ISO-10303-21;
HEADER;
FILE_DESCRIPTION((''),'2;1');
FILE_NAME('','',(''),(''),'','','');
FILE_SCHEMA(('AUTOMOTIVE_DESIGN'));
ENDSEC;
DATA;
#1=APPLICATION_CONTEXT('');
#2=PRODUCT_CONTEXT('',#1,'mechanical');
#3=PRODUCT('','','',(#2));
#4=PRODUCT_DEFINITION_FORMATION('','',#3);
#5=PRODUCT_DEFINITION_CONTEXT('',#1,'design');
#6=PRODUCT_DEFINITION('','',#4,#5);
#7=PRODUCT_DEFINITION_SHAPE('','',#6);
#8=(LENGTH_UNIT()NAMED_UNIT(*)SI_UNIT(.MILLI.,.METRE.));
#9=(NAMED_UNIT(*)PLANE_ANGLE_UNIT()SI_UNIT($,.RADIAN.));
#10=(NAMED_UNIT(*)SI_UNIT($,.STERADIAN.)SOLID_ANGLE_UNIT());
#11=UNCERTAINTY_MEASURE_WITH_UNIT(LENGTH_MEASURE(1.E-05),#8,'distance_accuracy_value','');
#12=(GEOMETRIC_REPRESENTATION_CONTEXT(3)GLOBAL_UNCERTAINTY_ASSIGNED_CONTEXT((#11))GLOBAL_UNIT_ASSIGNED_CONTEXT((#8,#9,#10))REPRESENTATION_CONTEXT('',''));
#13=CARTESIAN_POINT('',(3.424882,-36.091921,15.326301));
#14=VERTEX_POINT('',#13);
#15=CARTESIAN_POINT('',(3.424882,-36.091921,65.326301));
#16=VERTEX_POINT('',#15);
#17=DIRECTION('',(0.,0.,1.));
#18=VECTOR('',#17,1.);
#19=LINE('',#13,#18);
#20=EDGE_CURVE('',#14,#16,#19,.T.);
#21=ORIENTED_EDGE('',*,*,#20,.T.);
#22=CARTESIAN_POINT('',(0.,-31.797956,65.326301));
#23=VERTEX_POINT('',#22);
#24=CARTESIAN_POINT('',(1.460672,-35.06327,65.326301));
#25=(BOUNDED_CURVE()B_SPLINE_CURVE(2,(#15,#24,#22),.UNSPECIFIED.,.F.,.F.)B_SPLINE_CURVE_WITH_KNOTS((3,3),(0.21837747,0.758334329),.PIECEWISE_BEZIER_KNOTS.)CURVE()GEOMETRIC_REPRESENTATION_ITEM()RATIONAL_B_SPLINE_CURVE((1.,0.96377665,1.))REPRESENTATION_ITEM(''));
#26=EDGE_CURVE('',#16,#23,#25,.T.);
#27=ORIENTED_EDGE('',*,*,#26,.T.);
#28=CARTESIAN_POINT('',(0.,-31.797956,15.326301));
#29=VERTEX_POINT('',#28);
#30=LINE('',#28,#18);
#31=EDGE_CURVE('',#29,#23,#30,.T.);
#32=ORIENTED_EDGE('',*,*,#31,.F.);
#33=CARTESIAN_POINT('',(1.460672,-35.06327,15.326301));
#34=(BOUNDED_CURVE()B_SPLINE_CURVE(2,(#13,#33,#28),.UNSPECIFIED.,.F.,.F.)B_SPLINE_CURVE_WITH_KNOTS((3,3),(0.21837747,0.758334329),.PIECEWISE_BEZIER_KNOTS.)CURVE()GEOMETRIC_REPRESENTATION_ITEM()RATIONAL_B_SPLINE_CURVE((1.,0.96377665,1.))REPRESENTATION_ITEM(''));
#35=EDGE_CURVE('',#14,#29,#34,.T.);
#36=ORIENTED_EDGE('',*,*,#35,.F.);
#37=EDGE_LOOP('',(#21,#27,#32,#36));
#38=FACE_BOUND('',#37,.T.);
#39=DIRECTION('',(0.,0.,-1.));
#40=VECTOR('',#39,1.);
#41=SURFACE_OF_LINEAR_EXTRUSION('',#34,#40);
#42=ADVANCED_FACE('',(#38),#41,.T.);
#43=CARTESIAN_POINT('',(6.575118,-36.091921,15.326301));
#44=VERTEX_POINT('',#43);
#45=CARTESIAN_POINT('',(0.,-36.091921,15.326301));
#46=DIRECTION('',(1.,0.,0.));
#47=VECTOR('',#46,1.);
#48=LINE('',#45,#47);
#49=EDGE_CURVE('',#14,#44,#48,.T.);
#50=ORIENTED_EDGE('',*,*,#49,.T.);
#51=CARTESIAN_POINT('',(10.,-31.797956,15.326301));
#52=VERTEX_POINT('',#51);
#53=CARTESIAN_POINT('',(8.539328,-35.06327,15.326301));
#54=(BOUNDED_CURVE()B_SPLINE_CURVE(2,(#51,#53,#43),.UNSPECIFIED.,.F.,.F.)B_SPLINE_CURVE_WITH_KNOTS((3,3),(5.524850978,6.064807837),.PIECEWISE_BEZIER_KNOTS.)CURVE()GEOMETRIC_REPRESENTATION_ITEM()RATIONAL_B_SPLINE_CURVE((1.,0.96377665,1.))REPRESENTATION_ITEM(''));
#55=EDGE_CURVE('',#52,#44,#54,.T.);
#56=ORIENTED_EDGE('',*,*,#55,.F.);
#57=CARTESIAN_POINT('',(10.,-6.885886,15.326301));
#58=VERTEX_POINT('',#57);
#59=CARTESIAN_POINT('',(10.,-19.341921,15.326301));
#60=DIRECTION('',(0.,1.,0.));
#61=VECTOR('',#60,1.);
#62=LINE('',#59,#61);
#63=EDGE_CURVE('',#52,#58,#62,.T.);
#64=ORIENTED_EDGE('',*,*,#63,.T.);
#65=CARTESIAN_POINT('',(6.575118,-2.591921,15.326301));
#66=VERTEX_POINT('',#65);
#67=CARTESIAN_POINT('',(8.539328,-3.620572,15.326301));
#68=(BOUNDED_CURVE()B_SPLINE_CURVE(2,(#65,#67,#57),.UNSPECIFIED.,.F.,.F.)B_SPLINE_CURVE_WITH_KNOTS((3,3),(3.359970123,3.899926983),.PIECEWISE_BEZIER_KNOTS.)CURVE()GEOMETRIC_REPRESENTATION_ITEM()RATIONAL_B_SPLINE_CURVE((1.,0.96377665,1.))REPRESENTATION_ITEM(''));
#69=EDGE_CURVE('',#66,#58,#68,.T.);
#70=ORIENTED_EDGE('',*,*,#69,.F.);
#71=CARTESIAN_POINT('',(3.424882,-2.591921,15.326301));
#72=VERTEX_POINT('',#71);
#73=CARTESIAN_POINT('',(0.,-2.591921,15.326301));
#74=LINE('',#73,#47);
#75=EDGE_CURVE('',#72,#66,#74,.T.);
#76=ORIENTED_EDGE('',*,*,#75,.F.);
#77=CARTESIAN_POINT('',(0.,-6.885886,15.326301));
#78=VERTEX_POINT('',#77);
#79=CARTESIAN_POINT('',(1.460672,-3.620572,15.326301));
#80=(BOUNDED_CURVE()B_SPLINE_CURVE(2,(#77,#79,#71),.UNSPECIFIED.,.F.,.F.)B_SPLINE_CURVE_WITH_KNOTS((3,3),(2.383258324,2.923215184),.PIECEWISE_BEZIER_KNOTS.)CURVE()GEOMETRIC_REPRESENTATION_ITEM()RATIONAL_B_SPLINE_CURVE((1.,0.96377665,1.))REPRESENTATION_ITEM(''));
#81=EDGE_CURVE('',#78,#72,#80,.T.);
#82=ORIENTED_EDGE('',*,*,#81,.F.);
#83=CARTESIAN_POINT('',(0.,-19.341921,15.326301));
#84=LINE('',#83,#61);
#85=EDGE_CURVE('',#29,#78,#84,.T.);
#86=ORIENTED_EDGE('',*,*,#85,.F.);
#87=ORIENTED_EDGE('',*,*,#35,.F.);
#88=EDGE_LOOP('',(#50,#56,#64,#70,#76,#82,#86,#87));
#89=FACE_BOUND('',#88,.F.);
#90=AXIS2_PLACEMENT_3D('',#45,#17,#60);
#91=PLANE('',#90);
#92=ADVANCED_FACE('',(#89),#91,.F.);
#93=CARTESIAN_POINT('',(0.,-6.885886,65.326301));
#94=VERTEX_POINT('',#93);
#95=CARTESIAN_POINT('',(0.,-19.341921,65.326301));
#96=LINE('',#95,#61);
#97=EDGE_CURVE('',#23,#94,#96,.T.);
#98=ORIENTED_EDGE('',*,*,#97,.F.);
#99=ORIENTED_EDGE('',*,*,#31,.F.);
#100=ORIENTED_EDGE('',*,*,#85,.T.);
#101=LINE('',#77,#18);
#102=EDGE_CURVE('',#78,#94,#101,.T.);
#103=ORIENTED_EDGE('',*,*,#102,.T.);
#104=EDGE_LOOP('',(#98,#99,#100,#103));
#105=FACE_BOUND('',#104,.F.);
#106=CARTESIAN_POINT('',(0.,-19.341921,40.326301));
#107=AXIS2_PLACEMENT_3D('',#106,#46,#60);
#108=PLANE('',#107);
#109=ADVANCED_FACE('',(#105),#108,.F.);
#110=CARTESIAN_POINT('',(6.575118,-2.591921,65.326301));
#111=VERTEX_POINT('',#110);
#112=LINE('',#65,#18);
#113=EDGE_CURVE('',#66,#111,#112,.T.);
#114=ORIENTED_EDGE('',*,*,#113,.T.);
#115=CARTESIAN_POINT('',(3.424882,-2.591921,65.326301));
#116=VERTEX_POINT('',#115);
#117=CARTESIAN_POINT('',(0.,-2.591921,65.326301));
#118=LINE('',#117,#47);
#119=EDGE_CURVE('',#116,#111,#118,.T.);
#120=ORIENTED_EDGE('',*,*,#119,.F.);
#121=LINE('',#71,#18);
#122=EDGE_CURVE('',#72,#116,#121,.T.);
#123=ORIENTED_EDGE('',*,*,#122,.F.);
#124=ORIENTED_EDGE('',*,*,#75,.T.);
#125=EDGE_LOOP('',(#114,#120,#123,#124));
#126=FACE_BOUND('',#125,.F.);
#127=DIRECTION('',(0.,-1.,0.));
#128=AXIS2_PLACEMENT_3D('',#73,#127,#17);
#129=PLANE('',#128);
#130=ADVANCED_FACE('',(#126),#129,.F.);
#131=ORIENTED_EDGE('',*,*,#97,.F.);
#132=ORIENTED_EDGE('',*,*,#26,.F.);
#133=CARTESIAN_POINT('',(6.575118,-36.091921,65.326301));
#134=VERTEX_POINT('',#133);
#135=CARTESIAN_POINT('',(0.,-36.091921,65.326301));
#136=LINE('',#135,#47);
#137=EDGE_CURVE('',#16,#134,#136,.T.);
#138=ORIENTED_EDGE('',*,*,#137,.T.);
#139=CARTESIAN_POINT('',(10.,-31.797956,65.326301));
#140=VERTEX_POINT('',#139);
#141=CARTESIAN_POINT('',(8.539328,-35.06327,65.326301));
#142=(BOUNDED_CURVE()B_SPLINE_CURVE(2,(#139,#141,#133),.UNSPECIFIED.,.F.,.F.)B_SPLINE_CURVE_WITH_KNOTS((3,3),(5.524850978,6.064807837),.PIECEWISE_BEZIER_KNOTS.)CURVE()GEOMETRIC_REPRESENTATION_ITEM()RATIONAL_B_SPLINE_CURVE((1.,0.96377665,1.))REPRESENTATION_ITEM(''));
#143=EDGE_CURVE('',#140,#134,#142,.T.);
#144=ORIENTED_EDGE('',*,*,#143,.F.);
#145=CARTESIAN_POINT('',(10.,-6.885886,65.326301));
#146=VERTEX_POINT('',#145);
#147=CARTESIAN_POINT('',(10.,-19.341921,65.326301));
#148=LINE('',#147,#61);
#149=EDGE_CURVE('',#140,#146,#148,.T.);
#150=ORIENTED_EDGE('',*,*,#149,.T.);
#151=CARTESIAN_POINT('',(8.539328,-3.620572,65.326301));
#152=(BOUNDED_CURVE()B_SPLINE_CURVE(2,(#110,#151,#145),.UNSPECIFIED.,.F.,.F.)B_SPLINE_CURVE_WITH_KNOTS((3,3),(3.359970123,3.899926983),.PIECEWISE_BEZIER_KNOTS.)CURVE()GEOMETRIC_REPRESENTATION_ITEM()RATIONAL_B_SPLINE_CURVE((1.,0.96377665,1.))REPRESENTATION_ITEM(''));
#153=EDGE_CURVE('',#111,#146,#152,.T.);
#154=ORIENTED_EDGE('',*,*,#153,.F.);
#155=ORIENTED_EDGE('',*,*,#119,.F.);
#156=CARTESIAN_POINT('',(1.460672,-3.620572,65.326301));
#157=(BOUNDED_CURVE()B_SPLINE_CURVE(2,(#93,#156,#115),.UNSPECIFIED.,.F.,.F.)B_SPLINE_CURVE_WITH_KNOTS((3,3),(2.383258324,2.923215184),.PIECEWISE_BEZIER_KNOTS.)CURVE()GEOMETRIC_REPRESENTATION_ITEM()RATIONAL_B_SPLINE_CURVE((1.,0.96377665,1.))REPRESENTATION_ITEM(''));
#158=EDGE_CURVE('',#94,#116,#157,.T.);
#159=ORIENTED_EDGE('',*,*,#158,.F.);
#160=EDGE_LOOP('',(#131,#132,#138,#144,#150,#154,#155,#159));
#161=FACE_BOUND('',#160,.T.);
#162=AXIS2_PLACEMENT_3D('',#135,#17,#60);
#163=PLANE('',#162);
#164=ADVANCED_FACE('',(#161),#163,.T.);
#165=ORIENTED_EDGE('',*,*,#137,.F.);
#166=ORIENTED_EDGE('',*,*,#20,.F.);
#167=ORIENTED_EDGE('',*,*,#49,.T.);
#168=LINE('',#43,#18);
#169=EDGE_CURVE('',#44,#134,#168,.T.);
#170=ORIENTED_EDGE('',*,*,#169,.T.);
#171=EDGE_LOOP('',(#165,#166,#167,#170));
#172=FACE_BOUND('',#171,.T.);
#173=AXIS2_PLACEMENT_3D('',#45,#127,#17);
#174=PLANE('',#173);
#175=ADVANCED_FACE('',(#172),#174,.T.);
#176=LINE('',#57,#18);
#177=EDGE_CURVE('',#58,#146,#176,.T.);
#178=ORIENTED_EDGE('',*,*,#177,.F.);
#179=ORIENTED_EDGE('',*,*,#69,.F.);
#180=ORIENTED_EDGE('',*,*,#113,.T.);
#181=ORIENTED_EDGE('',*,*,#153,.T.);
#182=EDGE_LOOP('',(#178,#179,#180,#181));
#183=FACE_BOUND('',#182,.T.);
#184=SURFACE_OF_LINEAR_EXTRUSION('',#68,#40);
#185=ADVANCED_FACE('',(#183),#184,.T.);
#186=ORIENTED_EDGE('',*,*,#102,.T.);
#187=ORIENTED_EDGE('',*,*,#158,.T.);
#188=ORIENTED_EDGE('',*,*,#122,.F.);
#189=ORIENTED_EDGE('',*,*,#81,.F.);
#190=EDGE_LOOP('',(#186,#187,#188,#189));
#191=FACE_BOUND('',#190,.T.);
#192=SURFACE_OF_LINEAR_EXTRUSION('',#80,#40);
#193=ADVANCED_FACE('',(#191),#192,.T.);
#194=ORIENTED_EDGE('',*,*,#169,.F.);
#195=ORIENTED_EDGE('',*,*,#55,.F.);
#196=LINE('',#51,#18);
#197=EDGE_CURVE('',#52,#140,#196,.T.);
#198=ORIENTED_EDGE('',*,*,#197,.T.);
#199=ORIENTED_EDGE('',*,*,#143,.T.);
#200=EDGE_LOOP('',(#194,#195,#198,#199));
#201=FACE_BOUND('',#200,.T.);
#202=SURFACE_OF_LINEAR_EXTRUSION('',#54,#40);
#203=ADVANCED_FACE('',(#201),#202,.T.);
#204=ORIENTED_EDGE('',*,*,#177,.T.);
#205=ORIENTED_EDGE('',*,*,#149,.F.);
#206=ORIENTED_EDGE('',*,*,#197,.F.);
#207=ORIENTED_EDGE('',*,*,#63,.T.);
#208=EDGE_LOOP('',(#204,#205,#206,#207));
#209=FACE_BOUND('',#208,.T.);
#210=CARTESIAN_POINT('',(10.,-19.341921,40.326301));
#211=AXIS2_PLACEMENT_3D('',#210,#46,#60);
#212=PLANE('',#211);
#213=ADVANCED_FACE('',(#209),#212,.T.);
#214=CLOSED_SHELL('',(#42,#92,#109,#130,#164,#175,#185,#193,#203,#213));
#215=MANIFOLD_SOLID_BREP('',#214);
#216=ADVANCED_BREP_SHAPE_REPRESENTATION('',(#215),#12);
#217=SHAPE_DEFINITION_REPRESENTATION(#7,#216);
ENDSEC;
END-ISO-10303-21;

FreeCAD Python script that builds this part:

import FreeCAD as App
import Part
import Sketcher
from FreeCAD import Vector
Q = App.Units.Quantity


def add_polygon(sketch, points):
    """Adds a closed chain of lines whose ends are joined by coincident constraints."""
    first, n = sketch.GeometryCount, len(points)
    for a, b in zip(points, points[1:] + points[:1]):
        sketch.addGeometry(Part.LineSegment(App.Vector(*a, 0), App.Vector(*b, 0)), False)
    for i in range(n):
        sketch.addConstraint(Sketcher.Constraint("Coincident", first + i, 2, first + (i + 1) % n, 1))

doc = App.newDocument("Part")
body = doc.addObject("PartDesign::Body", "Body")

# Sketch on YZ plane
sketch1 = doc.addObject("Sketcher::SketchObject", "Sketch")
body.addObject(sketch1)
sketch1.AttachmentSupport = (doc.YZ_Plane, [""])
sketch1.MapMode = "FlatFace"
add_polygon(sketch1, [(-36, 65), (-36, 15), (-3, 15), (-3, 65)])  # lines 0-3
sketch1.addConstraint([
    Sketcher.Constraint("Vertical", 0),
    Sketcher.Constraint("Horizontal", 1),
    Sketcher.Constraint("Vertical", 2),
    Sketcher.Constraint("Horizontal", 3),
    Sketcher.Constraint("DistanceY", 0, 2, 0, 1, Q("50 mm")),
    Sketcher.Constraint("DistanceX", 1, 1, 1, 2, Q("33.5 mm")),
    Sketcher.Constraint("DistanceY", -1, 1, 0, 2, Q("15.326301 mm")),
    Sketcher.Constraint("DistanceX", 0, 2, -1, 1, Q("36.091921 mm")),
])
pad1 = doc.addObject("PartDesign::Pad", "Pad")
body.addObject(pad1)
pad1.Profile = sketch1
pad1.Length = 10

# Sketch on XY plane
sketch2 = doc.addObject("Sketcher::SketchObject", "Sketch001")
body.addObject(sketch2)
sketch2.AttachmentSupport = (doc.XY_Plane, [""])
sketch2.MapMode = "FlatFace"
sketch2.AttachmentOffset = App.Placement(Vector(0, 0, 15.326301), App.Rotation())
sketch2.addGeometry([
    Part.BSplineCurve([Vector(3.424882, -36.091921, 0), Vector(1.460672, -35.06327, 0), Vector(0, -31.797956, 0)], [3, 3], [0.21837747, 0.758334329], False, 2, [1, 0.96377665, 1], False),  # 0
    Part.LineSegment(Vector(3.424882, -36.091921, 0), Vector(0, -36.091921, 0)),  # 1
    Part.LineSegment(Vector(0, -36.091921, 0), Vector(0, -31.797956, 0)),  # 2
    Part.LineSegment(Vector(0, -6.885886, 0), Vector(0, -2.591921, 0)),  # 3
    Part.LineSegment(Vector(0, -2.591921, 0), Vector(3.424882, -2.591921, 0)),  # 4
    Part.BSplineCurve([Vector(0, -6.885886, 0), Vector(1.460672, -3.620572, 0), Vector(3.424882, -2.591921, 0)], [3, 3], [2.383258324, 2.923215184], False, 2, [1, 0.96377665, 1], False),  # 5
    Part.LineSegment(Vector(10, -31.797956, 0), Vector(10, -36.091921, 0)),  # 6
    Part.LineSegment(Vector(10, -36.091921, 0), Vector(6.575118, -36.091921, 0)),  # 7
    Part.BSplineCurve([Vector(10, -31.797956, 0), Vector(8.539328, -35.06327, 0), Vector(6.575118, -36.091921, 0)], [3, 3], [5.524850978, 6.064807837], False, 2, [1, 0.96377665, 1], False),  # 8
    Part.BSplineCurve([Vector(6.575118, -2.591921, 0), Vector(8.539328, -3.620572, 0), Vector(10, -6.885886, 0)], [3, 3], [3.359970123, 3.899926983], False, 2, [1, 0.96377665, 1], False),  # 9
    Part.LineSegment(Vector(6.575118, -2.591921, 0), Vector(10, -2.591921, 0)),  # 10
    Part.LineSegment(Vector(10, -2.591921, 0), Vector(10, -6.885886, 0)),  # 11
], False)
sketch2.addConstraint([
    Sketcher.Constraint("Block", 0),
    Sketcher.Constraint("Block", 5),
    Sketcher.Constraint("Block", 8),
    Sketcher.Constraint("Block", 9),
    Sketcher.Constraint("Coincident", 0, 1, 1, 1),
    Sketcher.Constraint("Coincident", 1, 2, 2, 1),
    Sketcher.Constraint("Coincident", 2, 2, 0, 2),
    Sketcher.Constraint("Coincident", 3, 2, 4, 1),
    Sketcher.Constraint("Coincident", 4, 2, 5, 2),
    Sketcher.Constraint("Coincident", 5, 1, 3, 1),
    Sketcher.Constraint("Coincident", 6, 2, 7, 1),
    Sketcher.Constraint("Coincident", 7, 2, 8, 2),
    Sketcher.Constraint("Coincident", 8, 1, 6, 1),
    Sketcher.Constraint("Coincident", 9, 1, 10, 1),
    Sketcher.Constraint("Coincident", 10, 2, 11, 1),
    Sketcher.Constraint("Coincident", 11, 2, 9, 2),
    Sketcher.Constraint("Horizontal", 1),
    Sketcher.Constraint("Vertical", 2),
    Sketcher.Constraint("Vertical", 3),
    Sketcher.Constraint("Horizontal", 4),
    Sketcher.Constraint("Vertical", 6),
    Sketcher.Constraint("Horizontal", 7),
    Sketcher.Constraint("Horizontal", 10),
    Sketcher.Constraint("Vertical", 11),
])
pocket1 = doc.addObject("PartDesign::Pocket", "Pocket")
body.addObject(pocket1)
pocket1.Profile = sketch2
pocket1.Type = "ThroughAll"
pocket1.Reversed = True

doc.recompute()
